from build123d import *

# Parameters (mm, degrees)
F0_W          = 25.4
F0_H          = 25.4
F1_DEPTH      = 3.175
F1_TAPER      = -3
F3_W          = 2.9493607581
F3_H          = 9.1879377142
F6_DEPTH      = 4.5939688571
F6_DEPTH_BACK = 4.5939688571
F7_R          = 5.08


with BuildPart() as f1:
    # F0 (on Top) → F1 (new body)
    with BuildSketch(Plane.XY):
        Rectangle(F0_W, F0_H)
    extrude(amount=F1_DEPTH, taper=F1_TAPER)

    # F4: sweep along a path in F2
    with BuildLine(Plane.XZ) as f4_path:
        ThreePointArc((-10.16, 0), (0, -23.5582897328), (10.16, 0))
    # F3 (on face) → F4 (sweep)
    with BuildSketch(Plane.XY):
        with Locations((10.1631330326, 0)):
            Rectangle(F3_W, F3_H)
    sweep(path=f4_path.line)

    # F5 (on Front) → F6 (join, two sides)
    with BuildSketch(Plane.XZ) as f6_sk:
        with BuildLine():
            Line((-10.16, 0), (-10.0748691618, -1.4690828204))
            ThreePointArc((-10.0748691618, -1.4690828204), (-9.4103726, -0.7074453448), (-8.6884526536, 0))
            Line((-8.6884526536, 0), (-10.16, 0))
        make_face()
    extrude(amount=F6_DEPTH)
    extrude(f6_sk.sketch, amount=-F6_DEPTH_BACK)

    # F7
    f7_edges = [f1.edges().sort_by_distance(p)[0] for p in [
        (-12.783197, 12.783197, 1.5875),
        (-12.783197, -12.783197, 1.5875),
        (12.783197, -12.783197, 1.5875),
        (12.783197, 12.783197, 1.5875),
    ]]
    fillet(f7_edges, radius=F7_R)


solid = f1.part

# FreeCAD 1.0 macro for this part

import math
import FreeCAD as App
import Part
import Sketcher

V = App.Vector
Q = App.Units.Quantity


def edges_at(feature, points):
    """Names of the edges that pass closest to the given points."""
    edges = feature.Shape.Edges
    near = lambda p: min(range(len(edges)), key=lambda i: edges[i].distToShape(Part.Vertex(*p))[0])
    return sorted({f"Edge{near(p) + 1}" for p in points})

doc = App.newDocument("Part")
body = doc.addObject("PartDesign::Body", "Body")

# Sketch on XY plane
sketch1 = body.newObject("Sketcher::SketchObject", "Sketch")
sketch1.AttachmentSupport = (doc.getObject("XY_Plane"), [""])
sketch1.MapMode = "FlatFace"
sketch1.addGeometry(Part.LineSegment(V(-13, 13, 0), V(-13, -13, 0)), False)
sketch1.addGeometry(Part.LineSegment(V(-13, -13, 0), V(13, -13, 0)), False)
sketch1.addGeometry(Part.LineSegment(V(13, -13, 0), V(13, 13, 0)), False)
sketch1.addGeometry(Part.LineSegment(V(13, 13, 0), V(-13, 13, 0)), False)
sketch1.addConstraint(Sketcher.Constraint("Coincident", 0, 2, 1, 1))
sketch1.addConstraint(Sketcher.Constraint("Coincident", 1, 2, 2, 1))
sketch1.addConstraint(Sketcher.Constraint("Coincident", 2, 2, 3, 1))
sketch1.addConstraint(Sketcher.Constraint("Coincident", 3, 2, 0, 1))
sketch1.addConstraint(Sketcher.Constraint("Vertical", 0))
sketch1.addConstraint(Sketcher.Constraint("Horizontal", 1))
sketch1.addConstraint(Sketcher.Constraint("Vertical", 2))
sketch1.addConstraint(Sketcher.Constraint("Horizontal", 3))
sketch1.addConstraint(Sketcher.Constraint("Symmetric", 0, 2, 2, 2, -1, 1))
sketch1.addConstraint(Sketcher.Constraint("Equal", 3, 0))
sketch1.addConstraint(Sketcher.Constraint("DistanceX", 1, 1, 1, 2, Q("1 in")))
pad1 = body.newObject("PartDesign::Pad", "Pad")
pad1.Profile = sketch1
pad1.Length = Q("0.125 in")
pad1.TaperAngle = 3

# Sketch on XY plane
sketch2 = body.newObject("Sketcher::SketchObject", "Sketch001")
sketch2.AttachmentSupport = (doc.getObject("XY_Plane"), [""])
sketch2.MapMode = "FlatFace"
sketch2.addGeometry(Part.LineSegment(V(8.7, 4.6, 0), V(8.7, -4.6, 0)), False)
sketch2.addGeometry(Part.LineSegment(V(8.7, -4.6, 0), V(11.6, -4.6, 0)), False)
sketch2.addGeometry(Part.LineSegment(V(11.6, -4.6, 0), V(11.6, 4.6, 0)), False)
sketch2.addGeometry(Part.LineSegment(V(11.6, 4.6, 0), V(8.7, 4.6, 0)), False)
sketch2.addConstraint(Sketcher.Constraint("Coincident", 0, 2, 1, 1))
sketch2.addConstraint(Sketcher.Constraint("Coincident", 1, 2, 2, 1))
sketch2.addConstraint(Sketcher.Constraint("Coincident", 2, 2, 3, 1))
sketch2.addConstraint(Sketcher.Constraint("Coincident", 3, 2, 0, 1))
sketch2.addConstraint(Sketcher.Constraint("Vertical", 0))
sketch2.addConstraint(Sketcher.Constraint("Horizontal", 1))
sketch2.addConstraint(Sketcher.Constraint("Vertical", 2))
sketch2.addConstraint(Sketcher.Constraint("Horizontal", 3))
sketch2.addConstraint(Sketcher.Constraint("DistanceX", 1, 1, 1, 2, 2.949361))
sketch2.addConstraint(Sketcher.Constraint("DistanceY", 0, 2, 0, 1, 9.187938))
sketch2.addConstraint(Sketcher.Constraint("DistanceY", 0, 2, -1, 1, 4.593969))
sketch2.addConstraint(Sketcher.Constraint("DistanceX", -1, 1, 0, 2, 8.688453))

# Sketch on XZ plane
sketch3 = body.newObject("Sketcher::SketchObject", "Sketch002")
sketch3.AttachmentSupport = (doc.getObject("XZ_Plane"), [""])
sketch3.MapMode = "FlatFace"
sketch3.addGeometry(Part.ArcOfCircle(Part.Circle(V(0, -10, 0), V(0, 0, 1), 14), math.radians(137), math.radians(403)), False)
sketch3.addConstraint(Sketcher.Constraint("Symmetric", 0, 1, 0, 2, -1, 1))
sketch3.addConstraint(Sketcher.Constraint("PointOnObject", 0, 3, -2))
sketch3.addConstraint(Sketcher.Constraint("Radius", 0, Q("0.55 in")))
sketch3.addConstraint(Sketcher.Constraint("DistanceX", 0, 1, -1, 1, Q("0.4 in")))
doc.recompute()

additivepipe = body.newObject("PartDesign::AdditivePipe", "AdditivePipe")
additivepipe.Profile = sketch2
additivepipe.Spine = (sketch3, ["Edge1"])

# Sketch on XZ plane
sketch4 = body.newObject("Sketcher::SketchObject", "Sketch003")
sketch4.AttachmentSupport = (doc.getObject("XZ_Plane"), [""])
sketch4.MapMode = "FlatFace"
sketch4.addGeometry(Part.LineSegment(V(-10.2, 0, 0), V(-10.1, -1.5, 0)), False)
sketch4.addGeometry(Part.ArcOfCircle(Part.Circle(V(0, -9.6, 0), V(0, 0, 1), 12.9), math.radians(132.18), math.radians(141.14)), False)
sketch4.addGeometry(Part.LineSegment(V(-8.7, 0, 0), V(-10.2, 0, 0)), False)
sketch4.addConstraint(Sketcher.Constraint("Coincident", 0, 2, 1, 2))
sketch4.addConstraint(Sketcher.Constraint("Coincident", 1, 1, 2, 1))
sketch4.addConstraint(Sketcher.Constraint("Coincident", 2, 2, 0, 1))
sketch4.addConstraint(Sketcher.Constraint("Horizontal", 2))
sketch4.addConstraint(Sketcher.Constraint("PointOnObject", 1, 3, -2))
sketch4.addConstraint(Sketcher.Constraint("PointOnObject", 1, 1, -1))
sketch4.addConstraint(Sketcher.Constraint("DistanceX", 2, 2, -1, 1, Q("0.4 in")))
sketch4.addConstraint(Sketcher.Constraint("Radius", 1, 12.939262))
sketch4.addConstraint(Sketcher.Constraint("DistanceX", 2, 2, 2, 1, 1.471547))
sketch4.addConstraint(Sketcher.Constraint("DistanceX", 0, 2, -1, 1, 10.074869))
pad2 = body.newObject("PartDesign::Pad", "Pad001")
pad2.Profile = sketch4
pad2.Type = "TwoLengths"
pad2.Length = 4.593969
pad2.Length2 = 4.593969
doc.recompute()

fillet = body.newObject("PartDesign::Fillet", "Fillet")
fillet.Base = (pad2, edges_at(pad2, [
    (-12.783, 12.783, 1.587),
    (-12.783, -12.783, 1.587),
    (12.783, -12.783, 1.587),
    (12.783, 12.783, 1.587),
]))
fillet.Radius = Q("0.2 in")

doc.recompute()
